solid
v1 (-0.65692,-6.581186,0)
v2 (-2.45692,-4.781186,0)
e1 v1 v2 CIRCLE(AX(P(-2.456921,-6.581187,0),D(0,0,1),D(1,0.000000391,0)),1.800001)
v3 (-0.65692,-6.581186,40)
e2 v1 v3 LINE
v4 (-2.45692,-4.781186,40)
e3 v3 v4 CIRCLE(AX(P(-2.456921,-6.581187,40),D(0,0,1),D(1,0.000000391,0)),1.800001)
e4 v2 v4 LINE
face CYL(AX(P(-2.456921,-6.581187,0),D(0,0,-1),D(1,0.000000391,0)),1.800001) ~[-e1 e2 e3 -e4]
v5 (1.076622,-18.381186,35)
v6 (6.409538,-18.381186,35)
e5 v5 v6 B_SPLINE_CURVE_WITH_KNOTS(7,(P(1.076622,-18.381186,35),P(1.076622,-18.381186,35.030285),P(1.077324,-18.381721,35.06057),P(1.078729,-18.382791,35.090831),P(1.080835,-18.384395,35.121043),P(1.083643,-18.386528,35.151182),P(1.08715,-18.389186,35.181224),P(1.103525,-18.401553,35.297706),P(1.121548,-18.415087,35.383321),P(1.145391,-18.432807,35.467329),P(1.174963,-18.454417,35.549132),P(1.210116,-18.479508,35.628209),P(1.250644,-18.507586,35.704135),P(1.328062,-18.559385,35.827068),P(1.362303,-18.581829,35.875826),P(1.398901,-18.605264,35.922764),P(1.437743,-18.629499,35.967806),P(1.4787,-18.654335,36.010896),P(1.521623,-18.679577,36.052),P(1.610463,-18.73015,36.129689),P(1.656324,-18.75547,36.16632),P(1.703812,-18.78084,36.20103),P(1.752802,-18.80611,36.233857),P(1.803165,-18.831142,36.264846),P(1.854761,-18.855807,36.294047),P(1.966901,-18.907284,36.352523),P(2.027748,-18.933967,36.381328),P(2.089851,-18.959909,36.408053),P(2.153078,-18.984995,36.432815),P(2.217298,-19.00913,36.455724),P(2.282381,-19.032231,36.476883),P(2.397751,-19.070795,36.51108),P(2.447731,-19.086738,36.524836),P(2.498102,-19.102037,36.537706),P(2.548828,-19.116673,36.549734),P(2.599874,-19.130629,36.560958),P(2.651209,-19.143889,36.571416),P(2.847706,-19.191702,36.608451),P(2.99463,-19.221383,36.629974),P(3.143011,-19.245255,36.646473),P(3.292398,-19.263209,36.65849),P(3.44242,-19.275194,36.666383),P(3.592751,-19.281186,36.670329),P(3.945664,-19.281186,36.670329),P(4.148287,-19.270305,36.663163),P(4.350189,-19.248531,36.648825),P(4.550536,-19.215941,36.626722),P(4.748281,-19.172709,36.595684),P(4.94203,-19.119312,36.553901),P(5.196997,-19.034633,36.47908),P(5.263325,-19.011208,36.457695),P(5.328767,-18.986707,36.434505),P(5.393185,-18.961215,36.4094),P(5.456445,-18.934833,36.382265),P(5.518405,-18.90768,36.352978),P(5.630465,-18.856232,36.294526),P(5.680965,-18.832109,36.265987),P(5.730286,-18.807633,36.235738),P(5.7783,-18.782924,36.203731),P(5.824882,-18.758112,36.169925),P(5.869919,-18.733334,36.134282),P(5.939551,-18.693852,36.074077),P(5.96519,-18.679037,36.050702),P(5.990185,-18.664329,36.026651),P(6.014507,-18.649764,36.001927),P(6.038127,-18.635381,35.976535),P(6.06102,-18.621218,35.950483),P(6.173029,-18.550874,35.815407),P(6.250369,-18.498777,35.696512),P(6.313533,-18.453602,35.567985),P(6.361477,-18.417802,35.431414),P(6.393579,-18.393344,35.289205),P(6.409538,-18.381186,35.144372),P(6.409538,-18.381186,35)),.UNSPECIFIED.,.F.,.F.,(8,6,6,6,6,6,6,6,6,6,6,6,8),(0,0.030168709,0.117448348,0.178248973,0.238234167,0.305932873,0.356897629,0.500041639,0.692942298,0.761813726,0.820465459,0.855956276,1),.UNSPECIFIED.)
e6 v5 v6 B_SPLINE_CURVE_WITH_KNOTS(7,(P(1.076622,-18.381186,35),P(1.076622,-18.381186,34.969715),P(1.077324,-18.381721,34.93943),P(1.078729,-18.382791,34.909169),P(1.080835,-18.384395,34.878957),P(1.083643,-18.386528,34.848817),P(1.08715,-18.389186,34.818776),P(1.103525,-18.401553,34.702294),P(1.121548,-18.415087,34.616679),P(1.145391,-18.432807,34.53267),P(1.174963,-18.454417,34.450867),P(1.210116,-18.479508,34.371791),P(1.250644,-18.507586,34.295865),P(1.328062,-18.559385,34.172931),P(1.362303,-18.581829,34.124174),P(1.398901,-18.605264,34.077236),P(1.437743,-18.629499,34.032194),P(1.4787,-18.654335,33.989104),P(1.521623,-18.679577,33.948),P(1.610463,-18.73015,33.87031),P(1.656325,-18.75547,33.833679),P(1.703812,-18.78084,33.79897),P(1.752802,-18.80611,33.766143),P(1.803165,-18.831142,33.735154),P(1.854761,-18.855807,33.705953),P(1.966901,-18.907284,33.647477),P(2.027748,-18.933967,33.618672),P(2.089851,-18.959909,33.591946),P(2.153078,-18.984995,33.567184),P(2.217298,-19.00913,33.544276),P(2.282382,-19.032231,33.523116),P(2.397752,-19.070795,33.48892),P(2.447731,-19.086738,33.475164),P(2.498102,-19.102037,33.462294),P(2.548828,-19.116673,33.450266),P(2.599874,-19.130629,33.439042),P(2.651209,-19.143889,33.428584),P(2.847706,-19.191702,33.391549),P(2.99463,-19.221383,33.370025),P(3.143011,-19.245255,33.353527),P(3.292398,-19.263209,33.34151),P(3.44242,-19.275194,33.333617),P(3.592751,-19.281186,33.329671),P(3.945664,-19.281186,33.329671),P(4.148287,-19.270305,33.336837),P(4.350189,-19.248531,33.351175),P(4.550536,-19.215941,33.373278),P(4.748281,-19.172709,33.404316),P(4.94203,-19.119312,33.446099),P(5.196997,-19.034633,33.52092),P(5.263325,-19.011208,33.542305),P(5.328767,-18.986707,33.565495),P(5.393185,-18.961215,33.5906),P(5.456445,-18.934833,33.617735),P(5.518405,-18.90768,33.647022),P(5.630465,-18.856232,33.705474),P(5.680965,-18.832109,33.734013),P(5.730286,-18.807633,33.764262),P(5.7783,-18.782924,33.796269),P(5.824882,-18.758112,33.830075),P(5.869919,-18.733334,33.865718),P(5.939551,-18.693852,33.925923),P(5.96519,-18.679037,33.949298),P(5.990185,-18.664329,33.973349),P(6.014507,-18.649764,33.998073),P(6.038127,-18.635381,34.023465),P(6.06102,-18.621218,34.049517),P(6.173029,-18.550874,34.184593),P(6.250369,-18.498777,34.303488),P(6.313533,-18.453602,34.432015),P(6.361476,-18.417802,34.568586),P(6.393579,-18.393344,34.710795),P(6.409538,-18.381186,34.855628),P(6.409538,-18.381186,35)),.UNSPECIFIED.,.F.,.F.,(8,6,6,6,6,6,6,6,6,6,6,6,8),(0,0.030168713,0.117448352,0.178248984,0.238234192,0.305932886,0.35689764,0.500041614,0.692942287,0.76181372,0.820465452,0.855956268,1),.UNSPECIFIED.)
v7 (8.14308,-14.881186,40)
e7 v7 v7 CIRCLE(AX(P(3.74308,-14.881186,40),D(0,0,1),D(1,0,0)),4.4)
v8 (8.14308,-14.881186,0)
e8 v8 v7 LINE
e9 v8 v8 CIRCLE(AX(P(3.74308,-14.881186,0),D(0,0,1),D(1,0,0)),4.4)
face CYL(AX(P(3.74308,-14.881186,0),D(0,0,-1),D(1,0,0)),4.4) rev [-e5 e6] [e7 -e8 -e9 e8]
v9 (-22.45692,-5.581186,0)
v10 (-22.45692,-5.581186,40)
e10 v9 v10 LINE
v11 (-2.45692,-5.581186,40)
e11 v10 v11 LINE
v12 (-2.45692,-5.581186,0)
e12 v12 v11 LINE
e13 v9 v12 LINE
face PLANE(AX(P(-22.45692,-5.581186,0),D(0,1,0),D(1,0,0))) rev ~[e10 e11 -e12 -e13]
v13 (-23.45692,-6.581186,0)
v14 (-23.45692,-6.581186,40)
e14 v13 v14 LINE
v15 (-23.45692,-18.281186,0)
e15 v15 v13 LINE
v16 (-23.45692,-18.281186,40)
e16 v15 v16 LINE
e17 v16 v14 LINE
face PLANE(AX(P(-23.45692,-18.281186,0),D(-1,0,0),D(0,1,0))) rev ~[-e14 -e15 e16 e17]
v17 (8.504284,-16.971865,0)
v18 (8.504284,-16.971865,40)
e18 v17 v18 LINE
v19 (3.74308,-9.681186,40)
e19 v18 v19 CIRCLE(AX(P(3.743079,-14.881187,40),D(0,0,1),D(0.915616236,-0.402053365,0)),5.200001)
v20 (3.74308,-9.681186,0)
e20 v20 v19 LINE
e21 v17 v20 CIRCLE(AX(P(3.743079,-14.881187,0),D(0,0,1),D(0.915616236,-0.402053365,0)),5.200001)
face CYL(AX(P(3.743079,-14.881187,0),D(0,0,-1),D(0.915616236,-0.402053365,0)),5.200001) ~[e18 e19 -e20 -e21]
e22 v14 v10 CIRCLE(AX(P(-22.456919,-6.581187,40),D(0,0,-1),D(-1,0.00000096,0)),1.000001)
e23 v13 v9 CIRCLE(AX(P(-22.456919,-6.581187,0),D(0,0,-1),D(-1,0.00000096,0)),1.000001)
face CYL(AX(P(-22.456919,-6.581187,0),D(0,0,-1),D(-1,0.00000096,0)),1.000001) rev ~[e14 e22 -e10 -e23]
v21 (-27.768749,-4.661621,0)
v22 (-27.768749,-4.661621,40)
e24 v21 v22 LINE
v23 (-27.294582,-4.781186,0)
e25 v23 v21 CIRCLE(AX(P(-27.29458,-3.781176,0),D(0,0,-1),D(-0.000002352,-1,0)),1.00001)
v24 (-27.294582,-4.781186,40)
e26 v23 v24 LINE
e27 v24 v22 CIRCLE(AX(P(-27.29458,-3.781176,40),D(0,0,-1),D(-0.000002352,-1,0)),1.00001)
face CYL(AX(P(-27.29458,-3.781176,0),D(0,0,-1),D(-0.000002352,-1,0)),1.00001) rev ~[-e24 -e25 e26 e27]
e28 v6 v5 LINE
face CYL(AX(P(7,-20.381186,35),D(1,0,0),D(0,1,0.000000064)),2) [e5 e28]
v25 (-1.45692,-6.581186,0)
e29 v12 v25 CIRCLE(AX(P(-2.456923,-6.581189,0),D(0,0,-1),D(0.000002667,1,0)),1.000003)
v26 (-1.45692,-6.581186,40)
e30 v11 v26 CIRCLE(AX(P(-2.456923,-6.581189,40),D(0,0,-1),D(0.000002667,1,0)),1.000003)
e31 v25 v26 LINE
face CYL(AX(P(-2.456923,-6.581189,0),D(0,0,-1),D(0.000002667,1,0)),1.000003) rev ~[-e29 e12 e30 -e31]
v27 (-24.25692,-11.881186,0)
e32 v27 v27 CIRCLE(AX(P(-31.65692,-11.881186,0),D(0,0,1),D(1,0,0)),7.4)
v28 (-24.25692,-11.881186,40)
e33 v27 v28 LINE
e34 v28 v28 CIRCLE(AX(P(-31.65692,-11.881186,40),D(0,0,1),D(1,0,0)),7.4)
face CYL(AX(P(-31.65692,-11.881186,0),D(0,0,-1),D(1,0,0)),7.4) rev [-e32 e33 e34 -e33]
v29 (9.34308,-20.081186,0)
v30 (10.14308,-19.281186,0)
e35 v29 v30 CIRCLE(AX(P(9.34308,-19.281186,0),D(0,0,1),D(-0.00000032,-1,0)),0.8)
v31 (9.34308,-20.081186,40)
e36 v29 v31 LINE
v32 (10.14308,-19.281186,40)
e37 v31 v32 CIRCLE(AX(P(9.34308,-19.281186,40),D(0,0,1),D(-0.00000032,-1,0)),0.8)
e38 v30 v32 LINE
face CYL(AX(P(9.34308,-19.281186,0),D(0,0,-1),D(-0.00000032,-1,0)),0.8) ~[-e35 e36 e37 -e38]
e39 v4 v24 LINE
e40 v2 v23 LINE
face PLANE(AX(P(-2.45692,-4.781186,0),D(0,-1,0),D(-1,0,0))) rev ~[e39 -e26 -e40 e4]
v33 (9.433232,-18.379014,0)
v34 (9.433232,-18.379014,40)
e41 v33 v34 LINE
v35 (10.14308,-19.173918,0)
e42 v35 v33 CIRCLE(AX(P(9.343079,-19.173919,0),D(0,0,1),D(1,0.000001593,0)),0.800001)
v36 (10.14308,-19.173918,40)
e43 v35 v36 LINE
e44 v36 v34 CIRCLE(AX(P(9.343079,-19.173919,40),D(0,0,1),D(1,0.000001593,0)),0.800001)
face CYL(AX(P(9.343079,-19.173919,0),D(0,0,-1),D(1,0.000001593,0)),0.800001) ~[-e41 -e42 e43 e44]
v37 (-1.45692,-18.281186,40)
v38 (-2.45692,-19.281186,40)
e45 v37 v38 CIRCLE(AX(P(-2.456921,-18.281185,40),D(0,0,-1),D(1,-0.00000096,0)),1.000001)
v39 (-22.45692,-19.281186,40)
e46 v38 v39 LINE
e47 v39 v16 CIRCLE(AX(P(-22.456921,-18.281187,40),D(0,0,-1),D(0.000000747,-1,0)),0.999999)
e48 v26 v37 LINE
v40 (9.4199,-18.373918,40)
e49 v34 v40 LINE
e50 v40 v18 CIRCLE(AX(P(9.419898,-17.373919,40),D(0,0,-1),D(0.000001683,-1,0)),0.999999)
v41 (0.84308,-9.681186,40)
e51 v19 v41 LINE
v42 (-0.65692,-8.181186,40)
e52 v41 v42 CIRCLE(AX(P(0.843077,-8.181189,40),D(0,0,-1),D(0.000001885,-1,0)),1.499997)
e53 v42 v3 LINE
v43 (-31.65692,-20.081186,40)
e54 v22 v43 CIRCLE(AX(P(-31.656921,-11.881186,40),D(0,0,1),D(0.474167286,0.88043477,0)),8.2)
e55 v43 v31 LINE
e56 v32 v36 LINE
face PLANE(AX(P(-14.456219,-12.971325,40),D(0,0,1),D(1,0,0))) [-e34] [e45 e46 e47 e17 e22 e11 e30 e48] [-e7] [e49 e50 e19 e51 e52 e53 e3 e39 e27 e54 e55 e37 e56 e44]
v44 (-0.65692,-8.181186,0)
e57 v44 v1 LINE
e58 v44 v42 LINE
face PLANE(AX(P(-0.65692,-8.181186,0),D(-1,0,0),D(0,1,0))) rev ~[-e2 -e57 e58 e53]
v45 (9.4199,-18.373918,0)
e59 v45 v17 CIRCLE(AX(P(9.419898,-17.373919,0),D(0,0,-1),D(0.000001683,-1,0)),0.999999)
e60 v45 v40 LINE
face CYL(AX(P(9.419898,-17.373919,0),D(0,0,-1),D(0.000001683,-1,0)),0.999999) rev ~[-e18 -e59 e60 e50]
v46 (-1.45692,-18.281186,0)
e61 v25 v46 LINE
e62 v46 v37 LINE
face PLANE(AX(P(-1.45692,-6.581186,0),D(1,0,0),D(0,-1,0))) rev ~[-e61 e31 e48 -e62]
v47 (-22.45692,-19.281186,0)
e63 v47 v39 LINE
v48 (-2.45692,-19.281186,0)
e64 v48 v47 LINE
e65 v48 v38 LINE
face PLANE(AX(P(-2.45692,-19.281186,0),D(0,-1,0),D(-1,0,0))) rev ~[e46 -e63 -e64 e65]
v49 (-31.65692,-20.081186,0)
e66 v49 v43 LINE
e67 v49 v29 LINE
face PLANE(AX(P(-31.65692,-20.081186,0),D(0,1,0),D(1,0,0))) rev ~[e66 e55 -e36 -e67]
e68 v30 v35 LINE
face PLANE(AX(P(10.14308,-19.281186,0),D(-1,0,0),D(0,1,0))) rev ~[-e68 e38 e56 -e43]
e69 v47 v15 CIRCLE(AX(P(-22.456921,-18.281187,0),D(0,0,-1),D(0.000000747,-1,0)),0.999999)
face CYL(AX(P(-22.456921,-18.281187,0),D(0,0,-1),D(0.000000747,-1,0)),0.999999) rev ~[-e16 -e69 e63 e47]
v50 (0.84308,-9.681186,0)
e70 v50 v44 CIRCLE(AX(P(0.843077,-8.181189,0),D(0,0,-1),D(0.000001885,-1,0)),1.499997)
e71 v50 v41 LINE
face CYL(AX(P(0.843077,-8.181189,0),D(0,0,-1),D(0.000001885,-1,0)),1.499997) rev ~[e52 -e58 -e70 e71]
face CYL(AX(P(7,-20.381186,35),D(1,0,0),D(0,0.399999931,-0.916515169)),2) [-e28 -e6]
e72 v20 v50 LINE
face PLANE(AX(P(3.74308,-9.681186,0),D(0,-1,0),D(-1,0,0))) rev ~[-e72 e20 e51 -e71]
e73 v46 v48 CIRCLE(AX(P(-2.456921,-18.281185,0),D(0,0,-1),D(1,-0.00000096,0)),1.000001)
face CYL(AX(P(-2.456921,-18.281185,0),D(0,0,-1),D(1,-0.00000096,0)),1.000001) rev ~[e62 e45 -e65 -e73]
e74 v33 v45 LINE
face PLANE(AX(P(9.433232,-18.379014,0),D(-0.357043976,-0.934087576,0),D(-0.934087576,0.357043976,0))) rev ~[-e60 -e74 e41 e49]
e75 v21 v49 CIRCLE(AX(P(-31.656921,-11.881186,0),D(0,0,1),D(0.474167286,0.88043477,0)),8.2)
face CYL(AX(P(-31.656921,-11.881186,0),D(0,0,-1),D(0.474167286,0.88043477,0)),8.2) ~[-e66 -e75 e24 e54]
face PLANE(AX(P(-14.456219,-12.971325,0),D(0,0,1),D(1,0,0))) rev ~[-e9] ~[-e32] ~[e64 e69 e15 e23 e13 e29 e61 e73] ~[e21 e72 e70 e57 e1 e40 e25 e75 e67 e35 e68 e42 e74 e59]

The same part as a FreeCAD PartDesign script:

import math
import FreeCAD as App
import Part
import Sketcher
from FreeCAD import Vector

doc = App.newDocument("Part")
body = doc.addObject("PartDesign::Body", "Body")

# Sketch on XY plane
sketch1 = doc.addObject("Sketcher::SketchObject", "Sketch")
body.addObject(sketch1)
sketch1.AttachmentSupport = (doc.XY_Plane, [""])
sketch1.MapMode = "FlatFace"
sketch1.addGeometry([
    Part.ArcOfCircle(Part.Circle(Vector(-31.657, -11.881, 0), Vector(0, 0, 1), 8.2), math.radians(62), math.radians(270)),  # 0
    Part.LineSegment(Vector(-31.657, -20.081, 0), Vector(9.343, -20.081, 0)),  # 1
    Part.ArcOfCircle(Part.Circle(Vector(9.343, -19.281, 0), Vector(0, 0, 1), 0.8), math.radians(-90), math.radians(0)),  # 2
    Part.LineSegment(Vector(10.143, -19.281, 0), Vector(10.143, -19.174, 0)),  # 3
    Part.ArcOfCircle(Part.Circle(Vector(9.343, -19.174, 0), Vector(0, 0, 1), 0.8), math.radians(0), math.radians(84)),  # 4
    Part.LineSegment(Vector(9.433, -18.379, 0), Vector(9.42, -18.374, 0)),  # 5
    Part.ArcOfCircle(Part.Circle(Vector(9.42, -17.374, 0), Vector(0, 0, 1), 1), math.radians(156), math.radians(270)),  # 6
    Part.ArcOfCircle(Part.Circle(Vector(3.743, -14.881, 0), Vector(0, 0, 1), 5.2), math.radians(-24), math.radians(90)),  # 7
    Part.LineSegment(Vector(3.743, -9.681, 0), Vector(0.843, -9.681, 0)),  # 8
    Part.ArcOfCircle(Part.Circle(Vector(0.843, -8.181, 0), Vector(0, 0, 1), 1.5), math.radians(180), math.radians(270)),  # 9
    Part.LineSegment(Vector(-0.657, -8.181, 0), Vector(-0.657, -6.581, 0)),  # 10
    Part.ArcOfCircle(Part.Circle(Vector(-2.457, -6.581, 0), Vector(0, 0, 1), 1.8), math.radians(0), math.radians(90)),  # 11
    Part.LineSegment(Vector(-2.457, -4.781, 0), Vector(-27.295, -4.781, 0)),  # 12
    Part.ArcOfCircle(Part.Circle(Vector(-27.295, -3.781, 0), Vector(0, 0, 1), 1), math.radians(-118), math.radians(-90)),  # 13
    Part.LineSegment(Vector(-2.457, -19.281, 0), Vector(-22.457, -19.281, 0)),  # 14
    Part.ArcOfCircle(Part.Circle(Vector(-22.457, -18.281, 0), Vector(0, 0, 1), 1), math.radians(180), math.radians(270)),  # 15
    Part.LineSegment(Vector(-23.457, -18.281, 0), Vector(-23.457, -6.581, 0)),  # 16
    Part.ArcOfCircle(Part.Circle(Vector(-22.457, -6.581, 0), Vector(0, 0, 1), 1), math.radians(90), math.radians(180)),  # 17
    Part.LineSegment(Vector(-22.457, -5.581, 0), Vector(-2.457, -5.581, 0)),  # 18
    Part.ArcOfCircle(Part.Circle(Vector(-2.457, -6.581, 0), Vector(0, 0, 1), 1), math.radians(0), math.radians(90)),  # 19
    Part.LineSegment(Vector(-1.457, -6.581, 0), Vector(-1.457, -18.281, 0)),  # 20
    Part.ArcOfCircle(Part.Circle(Vector(-2.457, -18.281, 0), Vector(0, 0, 1), 1), math.radians(-90), math.radians(0)),  # 21
    Part.Circle(Vector(3.743, -14.881, 0), Vector(0, 0, 1), 4.4),  # 22
    Part.Circle(Vector(-31.657, -11.881, 0), Vector(0, 0, 1), 7.4),  # 23
], False)
sketch1.addConstraint([
    Sketcher.Constraint("Tangent", 0, 2, 1, 1),
    Sketcher.Constraint("Tangent", 1, 2, 2, 1),
    Sketcher.Constraint("Tangent", 2, 2, 3, 1),
    Sketcher.Constraint("Tangent", 3, 2, 4, 1),
    Sketcher.Constraint("Coincident", 4, 2, 5, 1),
    Sketcher.Constraint("Coincident", 5, 2, 6, 2),
    Sketcher.Constraint("Tangent", 6, 1, 7, 1),
    Sketcher.Constraint("Tangent", 7, 2, 8, 1),
    Sketcher.Constraint("Tangent", 8, 2, 9, 2),
    Sketcher.Constraint("Tangent", 9, 1, 10, 1),
    Sketcher.Constraint("Tangent", 10, 2, 11, 1),
    Sketcher.Constraint("Tangent", 11, 2, 12, 1),
    Sketcher.Constraint("Coincident", 12, 2, 13, 2),
    Sketcher.Constraint("Coincident", 13, 1, 0, 1),
    Sketcher.Constraint("Tangent", 14, 2, 15, 2),
    Sketcher.Constraint("Tangent", 15, 1, 16, 1),
    Sketcher.Constraint("Tangent", 16, 2, 17, 2),
    Sketcher.Constraint("Tangent", 17, 1, 18, 1),
    Sketcher.Constraint("Coincident", 18, 2, 19, 2),
    Sketcher.Constraint("Coincident", 19, 1, 20, 1),
    Sketcher.Constraint("Tangent", 20, 2, 21, 2),
    Sketcher.Constraint("Tangent", 21, 1, 14, 1),
    Sketcher.Constraint("Horizontal", 1),
    Sketcher.Constraint("Vertical", 3),
    Sketcher.Constraint("Horizontal", 8),
    Sketcher.Constraint("Vertical", 10),
    Sketcher.Constraint("Horizontal", 12),
    Sketcher.Constraint("Horizontal", 14),
    Sketcher.Constraint("Vertical", 16),
    Sketcher.Constraint("Horizontal", 18),
    Sketcher.Constraint("Vertical", 20),
    Sketcher.Constraint("Coincident", 19, 3, 11, 3),
    Sketcher.Constraint("Coincident", 22, 3, 7, 3),
    Sketcher.Constraint("Coincident", 23, 3, 0, 3),
    Sketcher.Constraint("Equal", 2, 4),
    Sketcher.Constraint("Equal", 6, 15),
    Sketcher.Constraint("Equal", 15, 17),
    Sketcher.Constraint("Equal", 17, 19),
    Sketcher.Constraint("Equal", 19, 21),
    Sketcher.Constraint("Horizontal", 2, 2, 14, 2),
    Sketcher.Constraint("Horizontal", 16, 2, 19, 1),
    Sketcher.Constraint("Vertical", 6, 3, 5, 2),
    Sketcher.Constraint("Vertical", 11, 2, 18, 2),
    Sketcher.Constraint("Radius", 6, 0.999999),
    Sketcher.Constraint("Diameter", 22, 8.8),
    Sketcher.Constraint("Diameter", 23, 14.8),
    Sketcher.Constraint("Radius", 0, 8.2),
    Sketcher.Constraint("Radius", 2, 0.8),
    Sketcher.Constraint("Radius", 7, 5.200001),
    Sketcher.Constraint("Radius", 11, 1.800001),
    Sketcher.Constraint("DistanceX", 1, 1, 1, 2, 41.0),
    Sketcher.Constraint("DistanceX", 14, 2, 14, 1, 20.0),
    Sketcher.Constraint("DistanceX", 8, 2, 8, 1, 2.9),
    Sketcher.Constraint("DistanceY", 10, 1, 10, 2, 1.6),
    Sketcher.Constraint("DistanceY", 16, 1, 16, 2, 11.7),
    Sketcher.Constraint("DistanceY", 7, 3, 0, 3, 3.000001),
    Sketcher.Constraint("DistanceY", 4, 3, 6, 3, 1.8),
    Sketcher.Constraint("DistanceX", 7, 3, 4, 3, 5.6),
    Sketcher.Constraint("Radius", 13, 1.00001),
    Sketcher.Constraint("DistanceX", 12, 2, 12, 1, 24.837662),
    Sketcher.Constraint("DistanceY", 3, 1, 3, 2, 0.107268),
    Sketcher.Constraint("DistanceX", -1, 1, 6, 3, 9.419898),
    Sketcher.Constraint("DistanceY", 4, 3, -1, 1, 19.173919),
    Sketcher.Constraint("DistanceX", 13, 1, -1, 1, 27.768749),
    Sketcher.Constraint("DistanceX", 2, 3, 4, 2, 0.090152),
])
pad1 = doc.addObject("PartDesign::Pad", "Pad")
body.addObject(pad1)
pad1.Profile = sketch1
pad1.Length = 40

# Sketch on YZ plane
sketch2 = doc.addObject("Sketcher::SketchObject", "Sketch001")
body.addObject(sketch2)
sketch2.AttachmentSupport = (doc.YZ_Plane, [""])
sketch2.MapMode = "FlatFace"
sketch2.AttachmentOffset = App.Placement(Vector(0, 0, 7), App.Rotation())
sketch2.addGeometry([
    Part.ArcOfCircle(Part.Circle(Vector(-20.4, 35, 0), Vector(0, 0, 1), 2), math.radians(-66), math.radians(0)),
    Part.ArcOfCircle(Part.Circle(Vector(-20.4, 35, 0), Vector(0, 0, 1), 2), math.radians(0), math.radians(66)),
    Part.LineSegment(Vector(-19.6, 36.8, 0), Vector(-19.6, 33.2, 0)),
], False)
sketch2.addConstraint([
    Sketcher.Constraint("Tangent", 0, 2, 1, 1),
    Sketcher.Constraint("Coincident", 1, 2, 2, 1),
    Sketcher.Constraint("Coincident", 2, 2, 0, 1),
    Sketcher.Constraint("Vertical", 2),
    Sketcher.Constraint("Equal", 0, 1),
    Sketcher.Constraint("Horizontal", 1, 3, 0, 2),
    Sketcher.Constraint("Radius", 0, 2.0),
    Sketcher.Constraint("DistanceY", -1, 1, 0, 3, 35.0),
    Sketcher.Constraint("DistanceX", 0, 3, 1, 2, 0.8),
    Sketcher.Constraint("DistanceX", 0, 3, -1, 1, 20.381186),
])
pad2 = doc.addObject("PartDesign::Pad", "Pad001")
body.addObject(pad2)
pad2.Profile = sketch2
pad2.Length = 8
pad2.Reversed = True

doc.recompute()
